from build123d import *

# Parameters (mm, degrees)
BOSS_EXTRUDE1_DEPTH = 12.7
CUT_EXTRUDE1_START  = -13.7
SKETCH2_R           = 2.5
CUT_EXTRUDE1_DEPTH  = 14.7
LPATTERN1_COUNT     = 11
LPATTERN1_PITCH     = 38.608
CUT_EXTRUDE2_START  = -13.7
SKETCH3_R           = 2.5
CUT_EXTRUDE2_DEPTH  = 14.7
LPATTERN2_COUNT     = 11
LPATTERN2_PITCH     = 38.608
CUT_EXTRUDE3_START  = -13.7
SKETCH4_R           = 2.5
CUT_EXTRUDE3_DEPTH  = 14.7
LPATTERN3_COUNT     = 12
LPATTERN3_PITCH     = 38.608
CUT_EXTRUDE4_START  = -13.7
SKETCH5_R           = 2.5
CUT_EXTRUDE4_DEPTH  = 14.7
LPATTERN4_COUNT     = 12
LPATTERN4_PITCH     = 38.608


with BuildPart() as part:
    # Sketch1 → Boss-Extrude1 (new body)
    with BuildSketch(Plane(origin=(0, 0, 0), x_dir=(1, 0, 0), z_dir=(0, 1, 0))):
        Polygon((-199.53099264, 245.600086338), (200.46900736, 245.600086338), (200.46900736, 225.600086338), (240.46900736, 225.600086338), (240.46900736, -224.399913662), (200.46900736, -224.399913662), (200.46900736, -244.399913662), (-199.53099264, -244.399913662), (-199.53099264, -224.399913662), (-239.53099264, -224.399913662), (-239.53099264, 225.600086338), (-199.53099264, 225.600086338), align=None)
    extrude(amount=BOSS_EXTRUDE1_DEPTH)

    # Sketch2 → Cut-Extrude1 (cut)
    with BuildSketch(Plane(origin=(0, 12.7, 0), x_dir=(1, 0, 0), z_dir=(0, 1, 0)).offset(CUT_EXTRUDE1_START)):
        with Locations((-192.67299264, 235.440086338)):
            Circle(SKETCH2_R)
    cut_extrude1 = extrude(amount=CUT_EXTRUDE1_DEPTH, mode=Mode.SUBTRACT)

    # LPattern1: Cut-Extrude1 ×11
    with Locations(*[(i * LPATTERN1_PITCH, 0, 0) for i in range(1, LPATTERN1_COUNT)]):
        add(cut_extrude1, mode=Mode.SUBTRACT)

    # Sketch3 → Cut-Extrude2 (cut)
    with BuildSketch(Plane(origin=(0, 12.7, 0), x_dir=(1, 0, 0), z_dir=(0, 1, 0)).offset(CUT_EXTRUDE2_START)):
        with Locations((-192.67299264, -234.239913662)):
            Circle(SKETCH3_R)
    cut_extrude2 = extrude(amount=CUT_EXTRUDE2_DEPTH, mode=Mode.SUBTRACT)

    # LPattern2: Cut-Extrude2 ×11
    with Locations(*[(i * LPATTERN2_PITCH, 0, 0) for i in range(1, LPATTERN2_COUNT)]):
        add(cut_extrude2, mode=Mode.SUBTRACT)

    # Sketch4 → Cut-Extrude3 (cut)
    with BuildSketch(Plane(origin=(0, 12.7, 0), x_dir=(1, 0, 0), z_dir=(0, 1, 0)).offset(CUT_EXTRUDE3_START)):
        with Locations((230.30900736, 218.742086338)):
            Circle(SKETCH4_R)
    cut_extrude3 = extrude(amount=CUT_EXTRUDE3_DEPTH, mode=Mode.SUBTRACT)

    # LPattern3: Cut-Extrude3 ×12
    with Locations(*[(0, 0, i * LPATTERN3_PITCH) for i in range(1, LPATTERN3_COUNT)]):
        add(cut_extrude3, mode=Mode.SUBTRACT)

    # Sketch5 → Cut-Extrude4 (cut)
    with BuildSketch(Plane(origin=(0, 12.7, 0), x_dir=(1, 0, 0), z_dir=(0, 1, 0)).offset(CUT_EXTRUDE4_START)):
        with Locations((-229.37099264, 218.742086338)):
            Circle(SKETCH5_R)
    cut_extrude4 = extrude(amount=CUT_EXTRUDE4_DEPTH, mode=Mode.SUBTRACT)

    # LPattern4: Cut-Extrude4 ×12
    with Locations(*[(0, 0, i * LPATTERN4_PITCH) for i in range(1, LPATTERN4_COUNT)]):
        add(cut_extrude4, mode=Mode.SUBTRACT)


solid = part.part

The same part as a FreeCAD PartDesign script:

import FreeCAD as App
import Part
import Sketcher

V = App.Vector
Q = App.Units.Quantity

doc = App.newDocument("Part")
body = doc.addObject("PartDesign::Body", "Body")

sketch1 = body.newObject("Sketcher::SketchObject", "Sketch")
sketch1.AttachmentSupport = (doc.getObject("XZ_Plane"), [""])
sketch1.MapMode = "FlatFace"
sketch1.addGeometry([
    Part.LineSegment(V(200, -246, 0), V(-200, -246, 0)),
    Part.LineSegment(V(-200, -246, 0), V(-200, -226, 0)),
    Part.LineSegment(V(-200, -226, 0), V(-240, -226, 0)),
    Part.LineSegment(V(-240, -226, 0), V(-240, 224, 0)),
    Part.LineSegment(V(-240, 224, 0), V(-200, 224, 0)),
    Part.LineSegment(V(-200, 224, 0), V(-200, 244, 0)),
    Part.LineSegment(V(-200, 244, 0), V(200, 244, 0)),
    Part.LineSegment(V(200, 244, 0), V(200, 224, 0)),
    Part.LineSegment(V(200, 224, 0), V(240, 224, 0)),
    Part.LineSegment(V(240, 224, 0), V(240, -226, 0)),
    Part.LineSegment(V(240, -226, 0), V(200, -226, 0)),
    Part.LineSegment(V(200, -226, 0), V(200, -246, 0)),
], False)
sketch1.addConstraint([
    Sketcher.Constraint("Coincident", 0, 2, 1, 1),
    Sketcher.Constraint("Coincident", 1, 2, 2, 1),
    Sketcher.Constraint("Coincident", 2, 2, 3, 1),
    Sketcher.Constraint("Coincident", 3, 2, 4, 1),
    Sketcher.Constraint("Coincident", 4, 2, 5, 1),
    Sketcher.Constraint("Coincident", 5, 2, 6, 1),
    Sketcher.Constraint("Coincident", 6, 2, 7, 1),
    Sketcher.Constraint("Coincident", 7, 2, 8, 1),
    Sketcher.Constraint("Coincident", 8, 2, 9, 1),
    Sketcher.Constraint("Coincident", 9, 2, 10, 1),
    Sketcher.Constraint("Coincident", 10, 2, 11, 1),
    Sketcher.Constraint("Coincident", 11, 2, 0, 1),
    Sketcher.Constraint("Horizontal", 0),
    Sketcher.Constraint("Vertical", 1),
    Sketcher.Constraint("Horizontal", 2),
    Sketcher.Constraint("Vertical", 3),
    Sketcher.Constraint("Horizontal", 4),
    Sketcher.Constraint("Vertical", 5),
    Sketcher.Constraint("Horizontal", 6),
    Sketcher.Constraint("Vertical", 7),
    Sketcher.Constraint("Horizontal", 8),
    Sketcher.Constraint("Vertical", 9),
    Sketcher.Constraint("Horizontal", 10),
    Sketcher.Constraint("Vertical", 11),
    Sketcher.Constraint("Horizontal", 4, 2, 7, 2),
    Sketcher.Constraint("Horizontal", 2, 2, 9, 2),
    Sketcher.Constraint("Vertical", 1, 2, 4, 2),
    Sketcher.Constraint("Vertical", 7, 2, 10, 2),
    Sketcher.Constraint("Equal", 4, 8),
    Sketcher.Constraint("Equal", 1, 5),
    Sketcher.Constraint("DistanceX", 0, 2, 0, 1, Q("400 mm")),
    Sketcher.Constraint("DistanceX", 2, 2, 2, 1, Q("40 mm")),
    Sketcher.Constraint("DistanceY", 1, 1, 1, 2, Q("20 mm")),
    Sketcher.Constraint("DistanceY", 3, 1, 3, 2, Q("450 mm")),
    Sketcher.Constraint("DistanceX", 0, 2, -1, 1, Q("199.530993 mm")),
    Sketcher.Constraint("DistanceY", 0, 2, -1, 1, Q("245.600086 mm")),
])
pad1 = body.newObject("PartDesign::Pad", "Pad")
pad1.Profile = sketch1
pad1.Length = 12.7
pad1.Reversed = True

sketch2 = body.newObject("Sketcher::SketchObject", "Sketch001")
sketch2.AttachmentSupport = (doc.getObject("XZ_Plane"), [""])
sketch2.MapMode = "FlatFace"
sketch2.AttachmentOffset = App.Placement(V(0, 0, 1), App.Rotation())
sketch2.addGeometry(Part.Circle(V(-192.7, -235.4, 0), V(0, 0, 1), 2.5), False)
sketch2.addConstraint([
    Sketcher.Constraint("Diameter", 0, Q("5 mm")),
    Sketcher.Constraint("DistanceX", 0, 3, -1, 1, Q("192.672993 mm")),
    Sketcher.Constraint("DistanceY", 0, 3, -1, 1, Q("235.440086 mm")),
])
pocket1 = body.newObject("PartDesign::Pocket", "Pocket")
pocket1.Profile = sketch2
pocket1.Length = 14.7
doc.recompute()

linearpattern = body.newObject("PartDesign::LinearPattern", "LinearPattern")
linearpattern.Originals = [pocket1]
linearpattern.Direction = (doc.getObject("X_Axis"), [""])
linearpattern.Mode = "offset"
linearpattern.Offset = 38.608
linearpattern.Occurrences = 11
body.Tip = linearpattern

sketch3 = body.newObject("Sketcher::SketchObject", "Sketch002")
sketch3.AttachmentSupport = (doc.getObject("XZ_Plane"), [""])
sketch3.MapMode = "FlatFace"
sketch3.AttachmentOffset = App.Placement(V(0, 0, 1), App.Rotation())
sketch3.addGeometry(Part.Circle(V(-192.7, 234.2, 0), V(0, 0, 1), 2.5), False)
sketch3.addConstraint([
    Sketcher.Constraint("Diameter", 0, Q("5 mm")),
    Sketcher.Constraint("DistanceX", 0, 3, -1, 1, Q("192.672993 mm")),
    Sketcher.Constraint("DistanceY", -1, 1, 0, 3, Q("234.239914 mm")),
])
pocket2 = body.newObject("PartDesign::Pocket", "Pocket001")
pocket2.Profile = sketch3
pocket2.Length = 14.7
doc.recompute()

linearpattern2 = body.newObject("PartDesign::LinearPattern", "LinearPattern001")
linearpattern2.Originals = [pocket2]
linearpattern2.Direction = (doc.getObject("X_Axis"), [""])
linearpattern2.Mode = "offset"
linearpattern2.Offset = 38.608
linearpattern2.Occurrences = 11
body.Tip = linearpattern2

sketch4 = body.newObject("Sketcher::SketchObject", "Sketch003")
sketch4.AttachmentSupport = (doc.getObject("XZ_Plane"), [""])
sketch4.MapMode = "FlatFace"
sketch4.AttachmentOffset = App.Placement(V(0, 0, 1), App.Rotation())
sketch4.addGeometry(Part.Circle(V(230.3, -218.7, 0), V(0, 0, 1), 2.5), False)
sketch4.addConstraint([
    Sketcher.Constraint("Diameter", 0, Q("5 mm")),
    Sketcher.Constraint("DistanceX", -1, 1, 0, 3, Q("230.309007 mm")),
    Sketcher.Constraint("DistanceY", 0, 3, -1, 1, Q("218.742086 mm")),
])
pocket3 = body.newObject("PartDesign::Pocket", "Pocket002")
pocket3.Profile = sketch4
pocket3.Length = 14.7
doc.recompute()

linearpattern3 = body.newObject("PartDesign::LinearPattern", "LinearPattern002")
linearpattern3.Originals = [pocket3]
linearpattern3.Direction = (doc.getObject("Z_Axis"), [""])
linearpattern3.Mode = "offset"
linearpattern3.Offset = 38.608
linearpattern3.Occurrences = 12
body.Tip = linearpattern3

sketch5 = body.newObject("Sketcher::SketchObject", "Sketch004")
sketch5.AttachmentSupport = (doc.getObject("XZ_Plane"), [""])
sketch5.MapMode = "FlatFace"
sketch5.AttachmentOffset = App.Placement(V(0, 0, 1), App.Rotation())
sketch5.addGeometry(Part.Circle(V(-229.4, -218.7, 0), V(0, 0, 1), 2.5), False)
sketch5.addConstraint([
    Sketcher.Constraint("Diameter", 0, Q("5 mm")),
    Sketcher.Constraint("DistanceX", 0, 3, -1, 1, Q("229.370993 mm")),
    Sketcher.Constraint("DistanceY", 0, 3, -1, 1, Q("218.742086 mm")),
])
pocket4 = body.newObject("PartDesign::Pocket", "Pocket003")
pocket4.Profile = sketch5
pocket4.Length = 14.7
doc.recompute()

linearpattern4 = body.newObject("PartDesign::LinearPattern", "LinearPattern003")
linearpattern4.Originals = [pocket4]
linearpattern4.Direction = (doc.getObject("Z_Axis"), [""])
linearpattern4.Mode = "offset"
linearpattern4.Offset = 38.608
linearpattern4.Occurrences = 12
body.Tip = linearpattern4

doc.recompute()
